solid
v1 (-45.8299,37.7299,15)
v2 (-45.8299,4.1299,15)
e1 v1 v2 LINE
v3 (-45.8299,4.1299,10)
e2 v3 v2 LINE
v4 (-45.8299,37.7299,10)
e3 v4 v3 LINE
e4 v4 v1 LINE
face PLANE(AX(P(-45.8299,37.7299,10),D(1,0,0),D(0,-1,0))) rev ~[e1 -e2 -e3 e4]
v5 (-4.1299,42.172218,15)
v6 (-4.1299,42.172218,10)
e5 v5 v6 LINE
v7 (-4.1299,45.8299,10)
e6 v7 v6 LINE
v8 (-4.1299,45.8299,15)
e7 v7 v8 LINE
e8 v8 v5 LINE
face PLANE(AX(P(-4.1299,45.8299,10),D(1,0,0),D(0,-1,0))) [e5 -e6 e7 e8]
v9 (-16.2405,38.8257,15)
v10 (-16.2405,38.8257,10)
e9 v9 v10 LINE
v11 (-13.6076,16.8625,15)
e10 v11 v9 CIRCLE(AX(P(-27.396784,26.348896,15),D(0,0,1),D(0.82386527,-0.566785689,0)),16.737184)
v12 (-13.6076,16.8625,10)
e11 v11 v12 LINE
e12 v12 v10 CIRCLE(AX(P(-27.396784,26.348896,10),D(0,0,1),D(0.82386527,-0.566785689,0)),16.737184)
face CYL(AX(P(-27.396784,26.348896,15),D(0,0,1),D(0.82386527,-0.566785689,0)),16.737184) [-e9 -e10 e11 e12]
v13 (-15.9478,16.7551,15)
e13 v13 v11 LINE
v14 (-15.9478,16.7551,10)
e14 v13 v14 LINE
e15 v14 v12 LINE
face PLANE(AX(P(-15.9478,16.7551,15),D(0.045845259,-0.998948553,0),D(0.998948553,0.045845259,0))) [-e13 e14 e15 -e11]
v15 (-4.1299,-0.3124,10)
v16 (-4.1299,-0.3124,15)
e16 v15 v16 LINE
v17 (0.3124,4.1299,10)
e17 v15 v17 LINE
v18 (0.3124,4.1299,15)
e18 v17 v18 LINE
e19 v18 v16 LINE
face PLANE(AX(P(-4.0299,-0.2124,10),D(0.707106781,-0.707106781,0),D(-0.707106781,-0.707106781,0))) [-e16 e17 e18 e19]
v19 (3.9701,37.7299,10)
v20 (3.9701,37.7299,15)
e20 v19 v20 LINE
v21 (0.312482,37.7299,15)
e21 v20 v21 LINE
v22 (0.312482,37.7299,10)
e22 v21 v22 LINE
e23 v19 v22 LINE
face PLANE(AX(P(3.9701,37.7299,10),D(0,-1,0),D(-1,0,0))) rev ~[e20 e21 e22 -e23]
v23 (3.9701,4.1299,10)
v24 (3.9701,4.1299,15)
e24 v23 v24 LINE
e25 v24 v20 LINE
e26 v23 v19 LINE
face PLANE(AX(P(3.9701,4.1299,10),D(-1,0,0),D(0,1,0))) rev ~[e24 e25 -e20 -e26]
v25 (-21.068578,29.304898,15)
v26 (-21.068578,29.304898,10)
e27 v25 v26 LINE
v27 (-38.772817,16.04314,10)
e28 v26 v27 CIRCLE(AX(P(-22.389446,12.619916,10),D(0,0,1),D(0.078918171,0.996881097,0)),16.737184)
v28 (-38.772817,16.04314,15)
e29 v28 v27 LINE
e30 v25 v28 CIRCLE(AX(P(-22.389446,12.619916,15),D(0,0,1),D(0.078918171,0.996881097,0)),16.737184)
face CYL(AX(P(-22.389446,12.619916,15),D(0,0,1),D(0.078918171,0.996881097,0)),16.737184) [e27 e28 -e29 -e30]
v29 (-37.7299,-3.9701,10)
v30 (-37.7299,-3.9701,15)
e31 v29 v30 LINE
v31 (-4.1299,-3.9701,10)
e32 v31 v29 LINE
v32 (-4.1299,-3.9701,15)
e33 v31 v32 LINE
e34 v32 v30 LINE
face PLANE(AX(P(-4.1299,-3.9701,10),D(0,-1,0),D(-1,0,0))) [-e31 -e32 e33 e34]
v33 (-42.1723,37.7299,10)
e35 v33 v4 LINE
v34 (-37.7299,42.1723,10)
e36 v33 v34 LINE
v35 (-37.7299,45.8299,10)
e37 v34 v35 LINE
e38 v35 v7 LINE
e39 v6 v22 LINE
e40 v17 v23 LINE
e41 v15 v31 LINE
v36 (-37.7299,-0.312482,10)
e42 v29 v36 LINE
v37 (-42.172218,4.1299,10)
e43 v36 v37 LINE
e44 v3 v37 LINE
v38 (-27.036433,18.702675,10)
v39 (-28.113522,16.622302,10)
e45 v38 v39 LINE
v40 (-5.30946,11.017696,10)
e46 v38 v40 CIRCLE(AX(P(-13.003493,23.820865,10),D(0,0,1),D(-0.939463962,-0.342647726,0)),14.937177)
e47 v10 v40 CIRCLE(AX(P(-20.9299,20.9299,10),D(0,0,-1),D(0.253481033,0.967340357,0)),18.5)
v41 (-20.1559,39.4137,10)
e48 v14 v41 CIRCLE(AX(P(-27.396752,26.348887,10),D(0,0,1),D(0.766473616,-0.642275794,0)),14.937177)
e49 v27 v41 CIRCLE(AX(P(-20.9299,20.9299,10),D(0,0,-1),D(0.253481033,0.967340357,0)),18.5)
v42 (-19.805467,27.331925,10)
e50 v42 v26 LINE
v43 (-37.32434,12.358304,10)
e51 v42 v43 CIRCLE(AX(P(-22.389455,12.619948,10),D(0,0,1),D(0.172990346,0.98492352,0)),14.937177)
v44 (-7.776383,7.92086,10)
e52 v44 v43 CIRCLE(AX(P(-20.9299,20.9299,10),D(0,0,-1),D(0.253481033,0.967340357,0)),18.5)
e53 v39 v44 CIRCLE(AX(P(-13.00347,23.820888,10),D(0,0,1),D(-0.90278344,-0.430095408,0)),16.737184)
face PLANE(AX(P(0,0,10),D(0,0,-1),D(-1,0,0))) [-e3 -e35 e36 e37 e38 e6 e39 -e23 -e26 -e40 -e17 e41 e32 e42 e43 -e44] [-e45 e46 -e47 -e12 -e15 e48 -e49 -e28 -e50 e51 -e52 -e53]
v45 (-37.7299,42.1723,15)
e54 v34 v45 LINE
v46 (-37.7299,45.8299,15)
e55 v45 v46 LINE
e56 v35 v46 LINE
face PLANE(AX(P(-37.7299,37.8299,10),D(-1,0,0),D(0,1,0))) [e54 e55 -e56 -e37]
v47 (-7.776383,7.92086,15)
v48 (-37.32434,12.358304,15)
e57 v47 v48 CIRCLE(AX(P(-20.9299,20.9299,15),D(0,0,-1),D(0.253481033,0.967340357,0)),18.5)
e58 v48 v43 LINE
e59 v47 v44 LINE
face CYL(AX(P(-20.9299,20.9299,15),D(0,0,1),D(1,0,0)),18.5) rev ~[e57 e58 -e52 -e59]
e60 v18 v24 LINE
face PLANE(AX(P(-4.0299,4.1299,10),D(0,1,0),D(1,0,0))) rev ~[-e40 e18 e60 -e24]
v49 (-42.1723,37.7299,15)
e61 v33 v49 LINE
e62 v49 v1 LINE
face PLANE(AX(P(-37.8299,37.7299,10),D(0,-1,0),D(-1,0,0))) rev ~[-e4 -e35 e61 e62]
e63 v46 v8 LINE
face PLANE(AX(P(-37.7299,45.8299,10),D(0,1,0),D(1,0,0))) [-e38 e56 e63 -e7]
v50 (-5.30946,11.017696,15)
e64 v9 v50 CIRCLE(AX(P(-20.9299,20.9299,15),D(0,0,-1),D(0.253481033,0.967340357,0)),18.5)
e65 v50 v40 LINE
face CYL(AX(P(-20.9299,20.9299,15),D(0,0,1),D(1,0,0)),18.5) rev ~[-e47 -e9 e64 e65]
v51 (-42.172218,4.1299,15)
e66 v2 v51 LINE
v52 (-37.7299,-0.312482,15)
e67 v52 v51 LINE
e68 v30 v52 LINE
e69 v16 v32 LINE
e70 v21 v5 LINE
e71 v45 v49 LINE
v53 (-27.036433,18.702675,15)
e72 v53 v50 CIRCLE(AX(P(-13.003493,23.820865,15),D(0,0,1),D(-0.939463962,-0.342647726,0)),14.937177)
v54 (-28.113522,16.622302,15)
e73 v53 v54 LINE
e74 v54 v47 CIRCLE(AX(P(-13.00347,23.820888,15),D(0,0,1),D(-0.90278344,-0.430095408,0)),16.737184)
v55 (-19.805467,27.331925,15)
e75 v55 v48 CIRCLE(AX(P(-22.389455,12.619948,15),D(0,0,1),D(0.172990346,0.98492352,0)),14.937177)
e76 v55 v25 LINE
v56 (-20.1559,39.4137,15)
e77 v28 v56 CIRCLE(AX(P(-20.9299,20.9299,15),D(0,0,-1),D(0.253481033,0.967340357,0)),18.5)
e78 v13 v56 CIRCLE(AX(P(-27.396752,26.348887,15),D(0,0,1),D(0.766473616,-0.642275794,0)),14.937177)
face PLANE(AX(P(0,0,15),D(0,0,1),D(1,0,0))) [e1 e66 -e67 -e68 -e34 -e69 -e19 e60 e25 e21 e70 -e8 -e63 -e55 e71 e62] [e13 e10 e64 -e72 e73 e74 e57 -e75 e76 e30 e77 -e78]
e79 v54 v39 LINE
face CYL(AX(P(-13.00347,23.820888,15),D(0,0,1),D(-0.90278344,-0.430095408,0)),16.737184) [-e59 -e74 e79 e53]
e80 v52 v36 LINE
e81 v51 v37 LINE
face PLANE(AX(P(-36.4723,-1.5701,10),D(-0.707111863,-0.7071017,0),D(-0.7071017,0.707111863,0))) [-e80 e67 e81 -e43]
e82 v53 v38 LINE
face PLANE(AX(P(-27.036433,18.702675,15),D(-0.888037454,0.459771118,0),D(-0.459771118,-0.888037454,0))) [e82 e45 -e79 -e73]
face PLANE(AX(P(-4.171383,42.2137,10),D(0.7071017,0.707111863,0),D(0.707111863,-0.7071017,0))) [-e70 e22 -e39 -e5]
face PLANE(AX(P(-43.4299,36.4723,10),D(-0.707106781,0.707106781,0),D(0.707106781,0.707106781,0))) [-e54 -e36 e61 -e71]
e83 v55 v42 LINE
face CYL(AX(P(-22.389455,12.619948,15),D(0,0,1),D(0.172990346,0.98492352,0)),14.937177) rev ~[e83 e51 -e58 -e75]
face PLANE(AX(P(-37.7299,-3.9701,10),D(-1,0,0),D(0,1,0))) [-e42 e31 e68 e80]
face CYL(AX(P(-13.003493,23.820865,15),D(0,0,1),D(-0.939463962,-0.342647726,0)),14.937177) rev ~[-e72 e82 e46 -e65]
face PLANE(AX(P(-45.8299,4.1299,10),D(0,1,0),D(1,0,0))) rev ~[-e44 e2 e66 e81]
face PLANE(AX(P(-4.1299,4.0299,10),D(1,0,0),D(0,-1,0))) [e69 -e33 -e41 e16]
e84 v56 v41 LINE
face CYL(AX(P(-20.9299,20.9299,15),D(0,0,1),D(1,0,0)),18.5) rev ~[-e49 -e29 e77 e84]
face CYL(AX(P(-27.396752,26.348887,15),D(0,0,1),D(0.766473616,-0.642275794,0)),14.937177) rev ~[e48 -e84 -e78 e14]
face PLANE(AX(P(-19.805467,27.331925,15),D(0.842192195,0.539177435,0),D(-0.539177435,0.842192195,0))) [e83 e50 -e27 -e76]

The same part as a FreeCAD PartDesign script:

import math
import FreeCAD as App
import Part
import Sketcher

V = App.Vector
Q = App.Units.Quantity

doc = App.newDocument("Part")
body = doc.addObject("PartDesign::Body", "Body")

# Sketch on XY plane
sketch1 = body.newObject("Sketcher::SketchObject", "Sketch")
sketch1.AttachmentSupport = (doc.getObject("XY_Plane"), [""])
sketch1.MapMode = "FlatFace"
sketch1.AttachmentOffset = App.Placement(V(0, 0, 10), App.Rotation())
sketch1.addGeometry([
    Part.LineSegment(V(-5.3876, -1.5701, 0), V(1.5701, 5.3876, 0)),  # 0
    Part.LineSegment(V(1.5701, 5.3876, 0), V(1.5701, 36.4723, 0)),  # 1
    Part.LineSegment(V(1.5701, 36.4723, 0), V(-5.3876, 43.4299, 0)),  # 2
    Part.LineSegment(V(-5.3876, 43.4299, 0), V(-36.4723, 43.4299, 0)),  # 3
    Part.LineSegment(V(-36.4723, 43.4299, 0), V(-43.4299, 36.4723, 0)),  # 4
    Part.LineSegment(V(-43.4299, 36.4723, 0), V(-43.4299, 5.3876, 0)),  # 5
    Part.LineSegment(V(-43.4299, 5.3876, 0), V(-36.4723, -1.5701, 0)),  # 6
    Part.LineSegment(V(-36.4723, -1.5701, 0), V(-5.3876, -1.5701, 0)),  # 7
], False)
sketch1.addConstraint([
    Sketcher.Constraint("Coincident", 0, 2, 1, 1),
    Sketcher.Constraint("Coincident", 1, 2, 2, 1),
    Sketcher.Constraint("Coincident", 2, 2, 3, 1),
    Sketcher.Constraint("Coincident", 3, 2, 4, 1),
    Sketcher.Constraint("Coincident", 4, 2, 5, 1),
    Sketcher.Constraint("Coincident", 5, 2, 6, 1),
    Sketcher.Constraint("Coincident", 6, 2, 7, 1),
    Sketcher.Constraint("Coincident", 7, 2, 0, 1),
    Sketcher.Constraint("Vertical", 1),
    Sketcher.Constraint("Horizontal", 3),
    Sketcher.Constraint("Vertical", 5),
    Sketcher.Constraint("Horizontal", 7),
    Sketcher.Constraint("Perpendicular", 0, 2),
    Sketcher.Constraint("Perpendicular", 2, 4),
    Sketcher.Constraint("Perpendicular", 4, 6),
    Sketcher.Constraint("Horizontal", 1, 2, 4, 2),
    Sketcher.Constraint("Horizontal", 0, 2, 5, 2),
    Sketcher.Constraint("Vertical", 3, 2, 6, 2),
    Sketcher.Constraint("Vertical", 2, 2, 7, 2),
    Sketcher.Constraint("Equal", 7, 1),
    Sketcher.Constraint("DistanceX", 4, 2, 1, 2, Q("45 mm")),
    Sketcher.Constraint("DistanceX", -1, 1, 0, 2, Q("1.57 mm")),
    Sketcher.Constraint("DistanceY", -1, 1, 2, 2, Q("43.43 mm")),
    Sketcher.Constraint("DistanceX", 3, 2, 3, 1, Q("31.0847 mm")),
])
pad1 = body.newObject("PartDesign::Pad", "Pad")
pad1.Profile = sketch1
pad1.Length = 5

# Sketch on XY plane
sketch2 = body.newObject("Sketcher::SketchObject", "Sketch001")
sketch2.AttachmentSupport = (doc.getObject("XY_Plane"), [""])
sketch2.MapMode = "FlatFace"
sketch2.AttachmentOffset = App.Placement(V(0, 0, 10), App.Rotation())
sketch2.addGeometry([
    Part.LineSegment(V(-45.8299, 37.7299, 0), V(-37.8299, 37.7299, 0)),  # 0
    Part.LineSegment(V(-37.8299, 37.7299, 0), V(-37.8299, 4.1299, 0)),  # 1
    Part.LineSegment(V(-37.8299, 4.1299, 0), V(-45.8299, 4.1299, 0)),  # 2
    Part.LineSegment(V(-45.8299, 4.1299, 0), V(-45.8299, 37.7299, 0)),  # 3
    Part.LineSegment(V(-37.7299, -3.9701, 0), V(-37.7299, 4.0299, 0)),  # 4
    Part.LineSegment(V(-37.7299, 4.0299, 0), V(-4.1299, 4.0299, 0)),  # 5
    Part.LineSegment(V(-4.1299, 4.0299, 0), V(-4.1299, -3.9701, 0)),  # 6
    Part.LineSegment(V(-4.1299, -3.9701, 0), V(-37.7299, -3.9701, 0)),  # 7
    Part.LineSegment(V(3.9701, 4.1299, 0), V(-4.0299, 4.1299, 0)),  # 8
    Part.LineSegment(V(-4.0299, 4.1299, 0), V(-4.0299, 37.7299, 0)),  # 9
    Part.LineSegment(V(-4.0299, 37.7299, 0), V(3.9701, 37.7299, 0)),  # 10
    Part.LineSegment(V(3.9701, 37.7299, 0), V(3.9701, 4.1299, 0)),  # 11
    Part.LineSegment(V(-4.1299, 45.8299, 0), V(-4.1299, 37.8299, 0)),  # 12
    Part.LineSegment(V(-4.1299, 37.8299, 0), V(-37.7299, 37.8299, 0)),  # 13
    Part.LineSegment(V(-37.7299, 37.8299, 0), V(-37.7299, 45.8299, 0)),  # 14
    Part.LineSegment(V(-37.7299, 45.8299, 0), V(-4.1299, 45.8299, 0)),  # 15
], False)
sketch2.addConstraint([
    Sketcher.Constraint("Coincident", 0, 2, 1, 1),
    Sketcher.Constraint("Coincident", 1, 2, 2, 1),
    Sketcher.Constraint("Coincident", 2, 2, 3, 1),
    Sketcher.Constraint("Coincident", 3, 2, 0, 1),
    Sketcher.Constraint("Coincident", 4, 2, 5, 1),
    Sketcher.Constraint("Coincident", 5, 2, 6, 1),
    Sketcher.Constraint("Coincident", 6, 2, 7, 1),
    Sketcher.Constraint("Coincident", 7, 2, 4, 1),
    Sketcher.Constraint("Coincident", 8, 2, 9, 1),
    Sketcher.Constraint("Coincident", 9, 2, 10, 1),
    Sketcher.Constraint("Coincident", 10, 2, 11, 1),
    Sketcher.Constraint("Coincident", 11, 2, 8, 1),
    Sketcher.Constraint("Coincident", 12, 2, 13, 1),
    Sketcher.Constraint("Coincident", 13, 2, 14, 1),
    Sketcher.Constraint("Coincident", 14, 2, 15, 1),
    Sketcher.Constraint("Coincident", 15, 2, 12, 1),
    Sketcher.Constraint("Horizontal", 0),
    Sketcher.Constraint("Vertical", 1),
    Sketcher.Constraint("Horizontal", 2),
    Sketcher.Constraint("Vertical", 3),
    Sketcher.Constraint("Vertical", 4),
    Sketcher.Constraint("Horizontal", 5),
    Sketcher.Constraint("Vertical", 6),
    Sketcher.Constraint("Horizontal", 7),
    Sketcher.Constraint("Horizontal", 8),
    Sketcher.Constraint("Vertical", 9),
    Sketcher.Constraint("Horizontal", 10),
    Sketcher.Constraint("Vertical", 11),
    Sketcher.Constraint("Vertical", 12),
    Sketcher.Constraint("Horizontal", 13),
    Sketcher.Constraint("Vertical", 14),
    Sketcher.Constraint("Horizontal", 15),
    Sketcher.Constraint("Horizontal", 2, 2, 8, 2),
    Sketcher.Constraint("Horizontal", 3, 2, 9, 2),
    Sketcher.Constraint("Vertical", 6, 2, 12, 2),
    Sketcher.Constraint("Vertical", 7, 2, 13, 2),
    Sketcher.Constraint("Equal", 2, 8),
    Sketcher.Constraint("Equal", 15, 1),
    Sketcher.Constraint("Equal", 10, 4),
    Sketcher.Constraint("Equal", 6, 12),
    Sketcher.Constraint("DistanceX", 1, 2, 4, 2, Q("0.1 mm")),
    Sketcher.Constraint("DistanceY", 4, 2, 1, 2, Q("0.1 mm")),
    Sketcher.Constraint("DistanceX", 5, 2, 8, 2, Q("0.1 mm")),
    Sketcher.Constraint("DistanceY", 9, 2, 12, 2, Q("0.1 mm")),
    Sketcher.Constraint("DistanceX", 0, 1, 0, 2, Q("8 mm")),
    Sketcher.Constraint("DistanceX", 5, 1, 5, 2, Q("33.6 mm")),
    Sketcher.Constraint("DistanceX", 0, 2, -1, 1, Q("37.83 mm")),
    Sketcher.Constraint("DistanceY", -1, 1, 0, 2, Q("37.73 mm")),
])
pad2 = body.newObject("PartDesign::Pad", "Pad001")
pad2.Profile = sketch2
pad2.Length = 5

# Sketch on XY plane
sketch3 = body.newObject("Sketcher::SketchObject", "Sketch002")
sketch3.AttachmentSupport = (doc.getObject("XY_Plane"), [""])
sketch3.MapMode = "FlatFace"
sketch3.AttachmentOffset = App.Placement(V(0, 0, 15), App.Rotation())
sketch3.addGeometry(Part.Circle(V(-20.9299, 20.9299, 0), V(0, 0, 1), 18.5), False)
sketch3.addConstraint([
    Sketcher.Constraint("Diameter", 0, Q("37 mm")),
    Sketcher.Constraint("DistanceX", 0, 3, -1, 1, Q("20.93 mm")),
    Sketcher.Constraint("DistanceY", -1, 1, 0, 3, Q("20.93 mm")),
])
pocket1 = body.newObject("PartDesign::Pocket", "Pocket")
pocket1.Profile = sketch3
pocket1.Length = 12

# Sketch on XY plane
sketch4 = body.newObject("Sketcher::SketchObject", "Sketch003")
sketch4.AttachmentSupport = (doc.getObject("XY_Plane"), [""])
sketch4.MapMode = "FlatFace"
sketch4.AttachmentOffset = App.Placement(V(0, 0, 15), App.Rotation())
sketch4.addGeometry([
    Part.ArcOfCircle(Part.Circle(V(-27.3968, 26.3489, 0), V(0, 0, 1), 14.937222), math.radians(-39.961649), math.radians(61.003479)),
    Part.LineSegment(V(-15.9478, 16.7551, 0), V(-13.6076, 16.8625, 0)),
    Part.ArcOfCircle(Part.Circle(V(-27.3968, 26.3489, 0), V(0, 0, 1), 16.737199), math.radians(-34.526365), math.radians(48.198078)),
    Part.ArcOfCircle(Part.Circle(V(-20.9299, 20.9299, 0), V(0, 0, 1), 18.5), math.radians(75.316402), math.radians(87.602168)),
], False)
sketch4.addConstraint([
    Sketcher.Constraint("Coincident", 0, 1, 1, 1),
    Sketcher.Constraint("Coincident", 1, 2, 2, 1),
    Sketcher.Constraint("Coincident", 2, 2, 3, 1),
    Sketcher.Constraint("Coincident", 3, 2, 0, 2),
    Sketcher.Constraint("Coincident", 2, 3, 0, 3),
    Sketcher.Constraint("Radius", 3, Q("18.5 mm")),
    Sketcher.Constraint("Radius", 0, Q("14.9372 mm")),
    Sketcher.Constraint("Radius", 2, Q("16.7372 mm")),
    Sketcher.Constraint("DistanceX", 3, 3, -1, 1, Q("20.93 mm")),
    Sketcher.Constraint("DistanceY", -1, 1, 3, 3, Q("20.93 mm")),
    Sketcher.Constraint("DistanceY", -1, 1, 0, 3, Q("26.349 mm")),
    Sketcher.Constraint("DistanceY", -1, 1, 0, 1, Q("16.755 mm")),
    Sketcher.Constraint("DistanceX", 3, 2, -1, 1, Q("20.156 mm")),
    Sketcher.Constraint("DistanceX", 2, 2, 1, 2, Q("2.633 mm")),
])
pad3 = body.newObject("PartDesign::Pad", "Pad002")
pad3.Profile = sketch4
pad3.Length = 5
pad3.Reversed = True
doc.recompute()

datumline = body.newObject("PartDesign::Line", "DatumLine")
datumline.Placement = App.Placement(V(-20.9299, 20.9299, 0), App.Rotation(V(0, 0, 1), V(0, 0, 1)))
polarpattern = body.newObject("PartDesign::PolarPattern", "PolarPattern")
polarpattern.Originals = [pad3]
polarpattern.Axis = (datumline, [""])
polarpattern.Angle = 360
polarpattern.Occurrences = 3
body.Tip = polarpattern

doc.recompute()
